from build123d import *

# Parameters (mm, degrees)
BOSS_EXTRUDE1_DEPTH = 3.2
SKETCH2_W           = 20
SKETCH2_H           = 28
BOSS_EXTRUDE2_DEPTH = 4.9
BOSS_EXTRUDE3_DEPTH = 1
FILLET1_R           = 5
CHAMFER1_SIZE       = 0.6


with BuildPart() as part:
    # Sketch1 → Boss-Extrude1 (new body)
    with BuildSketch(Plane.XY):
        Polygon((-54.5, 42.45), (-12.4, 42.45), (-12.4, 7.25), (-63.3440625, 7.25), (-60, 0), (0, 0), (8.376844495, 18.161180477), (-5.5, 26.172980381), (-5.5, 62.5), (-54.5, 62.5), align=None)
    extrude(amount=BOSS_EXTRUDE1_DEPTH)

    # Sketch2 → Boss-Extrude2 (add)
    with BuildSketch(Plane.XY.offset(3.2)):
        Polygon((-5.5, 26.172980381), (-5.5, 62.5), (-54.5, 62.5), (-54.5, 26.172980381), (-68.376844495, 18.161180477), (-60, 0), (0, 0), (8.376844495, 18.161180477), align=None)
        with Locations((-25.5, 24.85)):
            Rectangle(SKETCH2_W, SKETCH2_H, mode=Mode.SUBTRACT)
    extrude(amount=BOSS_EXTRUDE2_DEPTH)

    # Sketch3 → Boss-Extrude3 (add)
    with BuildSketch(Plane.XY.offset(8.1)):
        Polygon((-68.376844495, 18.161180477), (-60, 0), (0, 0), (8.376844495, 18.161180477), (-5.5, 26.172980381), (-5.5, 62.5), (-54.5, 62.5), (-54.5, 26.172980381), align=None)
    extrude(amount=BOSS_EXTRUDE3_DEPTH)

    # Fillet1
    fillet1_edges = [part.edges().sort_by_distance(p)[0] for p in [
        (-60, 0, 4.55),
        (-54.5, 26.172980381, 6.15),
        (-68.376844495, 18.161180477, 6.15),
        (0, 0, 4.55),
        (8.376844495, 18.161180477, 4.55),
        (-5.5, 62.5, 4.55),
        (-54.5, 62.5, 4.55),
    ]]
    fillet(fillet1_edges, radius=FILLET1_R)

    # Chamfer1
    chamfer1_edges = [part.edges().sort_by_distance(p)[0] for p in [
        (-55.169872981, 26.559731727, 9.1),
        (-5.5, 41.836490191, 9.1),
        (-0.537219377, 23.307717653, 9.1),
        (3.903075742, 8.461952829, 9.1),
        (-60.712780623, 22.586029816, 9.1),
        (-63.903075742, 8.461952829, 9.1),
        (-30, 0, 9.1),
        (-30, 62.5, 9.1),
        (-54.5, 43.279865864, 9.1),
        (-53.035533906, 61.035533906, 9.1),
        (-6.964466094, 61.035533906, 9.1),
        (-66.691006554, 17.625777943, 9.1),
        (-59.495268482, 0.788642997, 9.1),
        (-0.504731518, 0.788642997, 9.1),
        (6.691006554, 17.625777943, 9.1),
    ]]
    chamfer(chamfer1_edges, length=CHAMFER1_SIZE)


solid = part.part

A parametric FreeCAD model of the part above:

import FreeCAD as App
import Part
import Sketcher
Q = App.Units.Quantity


def edges_at(feature, points):
    """Names of the edges that pass closest to the given points."""
    edges = feature.Shape.Edges
    near = lambda p: min(range(len(edges)), key=lambda i: edges[i].distToShape(Part.Vertex(*p))[0])
    return sorted({f"Edge{near(p) + 1}" for p in points})

doc = App.newDocument("Part")
body = doc.addObject("PartDesign::Body", "Body")

# Sketch on XY plane
sketch1 = body.newObject("Sketcher::SketchObject", "Sketch")
sketch1.AttachmentSupport = (doc.getObject("XY_Plane"), [""])
sketch1.MapMode = "FlatFace"
sketch1.addGeometry([
    Part.LineSegment(App.Vector(-54.5, 42.45, 0), App.Vector(-12.4, 42.45, 0)),  # 0
    Part.LineSegment(App.Vector(-12.4, 42.45, 0), App.Vector(-12.4, 7.25, 0)),  # 1
    Part.LineSegment(App.Vector(-12.4, 7.25, 0), App.Vector(-63.344062, 7.25, 0)),  # 2
    Part.LineSegment(App.Vector(-63.344062, 7.25, 0), App.Vector(-60, 0, 0)),  # 3
    Part.LineSegment(App.Vector(-60, 0, 0), App.Vector(0, 0, 0)),  # 4
    Part.LineSegment(App.Vector(0, 0, 0), App.Vector(8.376844, 18.16118, 0)),  # 5
    Part.LineSegment(App.Vector(8.376844, 18.16118, 0), App.Vector(-5.5, 26.17298, 0)),  # 6
    Part.LineSegment(App.Vector(-5.5, 26.17298, 0), App.Vector(-5.5, 62.5, 0)),  # 7
    Part.LineSegment(App.Vector(-5.5, 62.5, 0), App.Vector(-54.5, 62.5, 0)),  # 8
    Part.LineSegment(App.Vector(-54.5, 62.5, 0), App.Vector(-54.5, 42.45, 0)),  # 9
], False)
sketch1.addConstraint([
    Sketcher.Constraint("Coincident", 0, 2, 1, 1),
    Sketcher.Constraint("Coincident", 1, 2, 2, 1),
    Sketcher.Constraint("Coincident", 2, 2, 3, 1),
    Sketcher.Constraint("Coincident", 3, 2, 4, 1),
    Sketcher.Constraint("Coincident", 4, 2, 5, 1),
    Sketcher.Constraint("Coincident", 5, 2, 6, 1),
    Sketcher.Constraint("Coincident", 6, 2, 7, 1),
    Sketcher.Constraint("Coincident", 7, 2, 8, 1),
    Sketcher.Constraint("Coincident", 8, 2, 9, 1),
    Sketcher.Constraint("Coincident", 9, 2, 0, 1),
    Sketcher.Constraint("Horizontal", 0),
    Sketcher.Constraint("Vertical", 1),
    Sketcher.Constraint("Horizontal", 2),
    Sketcher.Constraint("Horizontal", 4),
    Sketcher.Constraint("Vertical", 7),
    Sketcher.Constraint("Horizontal", 8),
    Sketcher.Constraint("Vertical", 9),
    Sketcher.Constraint("Coincident", 4, 2, -1, 1),
    Sketcher.Constraint("DistanceX", 4, 1, 4, 2, 60.0),
    Sketcher.Constraint("DistanceX", 8, 2, 8, 1, 49.0),
    Sketcher.Constraint("Angle", 6, Q("150 deg")),
    Sketcher.Constraint("Distance", 5, 20.0),
    Sketcher.Constraint("DistanceX", 0, 1, 0, 2, 42.1),
    Sketcher.Constraint("DistanceY", 1, 2, 1, 1, 35.2),
    Sketcher.Constraint("DistanceY", 9, 2, 9, 1, 20.05),
    Sketcher.Constraint("DistanceX", 0, 2, -1, 1, 12.4),
    Sketcher.Constraint("DistanceY", -1, 1, 7, 2, 62.5),
    Sketcher.Constraint("Distance", 6, 16.0236),
    Sketcher.Constraint("DistanceX", 2, 2, 2, 1, 50.944063),
])
pad1 = body.newObject("PartDesign::Pad", "Pad")
pad1.Profile = sketch1
pad1.Length = 3.2

# Sketch on XY plane
sketch2 = body.newObject("Sketcher::SketchObject", "Sketch001")
sketch2.AttachmentSupport = (doc.getObject("XY_Plane"), [""])
sketch2.MapMode = "FlatFace"
sketch2.AttachmentOffset = App.Placement(App.Vector(0, 0, 3.2), App.Rotation())
sketch2.addGeometry([
    Part.LineSegment(App.Vector(-5.5, 26.17298, 0), App.Vector(-5.5, 62.5, 0)),  # 0
    Part.LineSegment(App.Vector(-5.5, 62.5, 0), App.Vector(-54.5, 62.5, 0)),  # 1
    Part.LineSegment(App.Vector(-54.5, 62.5, 0), App.Vector(-54.5, 26.17298, 0)),  # 2
    Part.LineSegment(App.Vector(-54.5, 26.17298, 0), App.Vector(-68.376844, 18.16118, 0)),  # 3
    Part.LineSegment(App.Vector(-68.376844, 18.16118, 0), App.Vector(-60, 0, 0)),  # 4
    Part.LineSegment(App.Vector(-60, 0, 0), App.Vector(0, 0, 0)),  # 5
    Part.LineSegment(App.Vector(0, 0, 0), App.Vector(8.376844, 18.16118, 0)),  # 6
    Part.LineSegment(App.Vector(8.376844, 18.16118, 0), App.Vector(-5.5, 26.17298, 0)),  # 7
    Part.LineSegment(App.Vector(-15.5, 10.85, 0), App.Vector(-35.5, 10.85, 0)),  # 8
    Part.LineSegment(App.Vector(-35.5, 10.85, 0), App.Vector(-35.5, 38.85, 0)),  # 9
    Part.LineSegment(App.Vector(-35.5, 38.85, 0), App.Vector(-15.5, 38.85, 0)),  # 10
    Part.LineSegment(App.Vector(-15.5, 38.85, 0), App.Vector(-15.5, 10.85, 0)),  # 11
], False)
sketch2.addConstraint([
    Sketcher.Constraint("Coincident", 0, 2, 1, 1),
    Sketcher.Constraint("Coincident", 1, 2, 2, 1),
    Sketcher.Constraint("Coincident", 2, 2, 3, 1),
    Sketcher.Constraint("Coincident", 3, 2, 4, 1),
    Sketcher.Constraint("Coincident", 4, 2, 5, 1),
    Sketcher.Constraint("Coincident", 5, 2, 6, 1),
    Sketcher.Constraint("Coincident", 6, 2, 7, 1),
    Sketcher.Constraint("Coincident", 7, 2, 0, 1),
    Sketcher.Constraint("Coincident", 8, 2, 9, 1),
    Sketcher.Constraint("Coincident", 9, 2, 10, 1),
    Sketcher.Constraint("Coincident", 10, 2, 11, 1),
    Sketcher.Constraint("Coincident", 11, 2, 8, 1),
    Sketcher.Constraint("Vertical", 0),
    Sketcher.Constraint("Horizontal", 1),
    Sketcher.Constraint("Vertical", 2),
    Sketcher.Constraint("Horizontal", 5),
    Sketcher.Constraint("Horizontal", 8),
    Sketcher.Constraint("Vertical", 9),
    Sketcher.Constraint("Horizontal", 10),
    Sketcher.Constraint("Vertical", 11),
    Sketcher.Constraint("Coincident", 5, 2, -1, 1),
    Sketcher.Constraint("Horizontal", 3, 2, 6, 2),
    Sketcher.Constraint("Horizontal", 2, 2, 7, 2),
    Sketcher.Constraint("Equal", 4, 6),
    Sketcher.Constraint("Equal", 3, 7),
    Sketcher.Constraint("DistanceX", 1, 2, 1, 1, 49.0),
    Sketcher.Constraint("DistanceX", 5, 1, 5, 2, 60.0),
    Sketcher.Constraint("DistanceX", 8, 2, 8, 1, 20.0),
    Sketcher.Constraint("DistanceY", 9, 1, 9, 2, 28.0),
    Sketcher.Constraint("Angle", 3, Q("-150 deg")),
    Sketcher.Constraint("Distance", 4, 20.0),
    Sketcher.Constraint("DistanceX", 2, 2, 8, 2, 19.0),
    Sketcher.Constraint("DistanceY", -1, 1, 0, 2, 62.5),
    Sketcher.Constraint("DistanceY", -1, 1, 8, 2, 10.85),
    Sketcher.Constraint("Distance", 3, 16.0236),
])
pad2 = body.newObject("PartDesign::Pad", "Pad001")
pad2.Profile = sketch2
pad2.Length = 4.9

# Sketch on XY plane
sketch3 = body.newObject("Sketcher::SketchObject", "Sketch002")
sketch3.AttachmentSupport = (doc.getObject("XY_Plane"), [""])
sketch3.MapMode = "FlatFace"
sketch3.AttachmentOffset = App.Placement(App.Vector(0, 0, 8.1), App.Rotation())
sketch3.addGeometry([
    Part.LineSegment(App.Vector(-68.376844, 18.16118, 0), App.Vector(-60, 0, 0)),  # 0
    Part.LineSegment(App.Vector(-60, 0, 0), App.Vector(0, 0, 0)),  # 1
    Part.LineSegment(App.Vector(0, 0, 0), App.Vector(8.376844, 18.16118, 0)),  # 2
    Part.LineSegment(App.Vector(8.376844, 18.16118, 0), App.Vector(-5.5, 26.17298, 0)),  # 3
    Part.LineSegment(App.Vector(-5.5, 26.17298, 0), App.Vector(-5.5, 62.5, 0)),  # 4
    Part.LineSegment(App.Vector(-5.5, 62.5, 0), App.Vector(-54.5, 62.5, 0)),  # 5
    Part.LineSegment(App.Vector(-54.5, 62.5, 0), App.Vector(-54.5, 26.17298, 0)),  # 6
    Part.LineSegment(App.Vector(-54.5, 26.17298, 0), App.Vector(-68.376844, 18.16118, 0)),  # 7
], False)
sketch3.addConstraint([
    Sketcher.Constraint("Coincident", 0, 2, 1, 1),
    Sketcher.Constraint("Coincident", 1, 2, 2, 1),
    Sketcher.Constraint("Coincident", 2, 2, 3, 1),
    Sketcher.Constraint("Coincident", 3, 2, 4, 1),
    Sketcher.Constraint("Coincident", 4, 2, 5, 1),
    Sketcher.Constraint("Coincident", 5, 2, 6, 1),
    Sketcher.Constraint("Coincident", 6, 2, 7, 1),
    Sketcher.Constraint("Coincident", 7, 2, 0, 1),
    Sketcher.Constraint("Horizontal", 1),
    Sketcher.Constraint("Vertical", 4),
    Sketcher.Constraint("Horizontal", 5),
    Sketcher.Constraint("Vertical", 6),
    Sketcher.Constraint("Coincident", 1, 2, -1, 1),
    Sketcher.Constraint("Horizontal", 3, 2, 6, 2),
    Sketcher.Constraint("Horizontal", 2, 2, 7, 2),
    Sketcher.Constraint("Equal", 0, 2),
    Sketcher.Constraint("Equal", 3, 7),
    Sketcher.Constraint("DistanceX", 1, 1, 1, 2, 60.0),
    Sketcher.Constraint("DistanceX", 5, 2, 5, 1, 49.0),
    Sketcher.Constraint("Angle", 3, Q("150 deg")),
    Sketcher.Constraint("Distance", 0, 20.0),
    Sketcher.Constraint("DistanceY", -1, 1, 4, 2, 62.5),
    Sketcher.Constraint("Distance", 3, 16.0236),
])
pad3 = body.newObject("PartDesign::Pad", "Pad002")
pad3.Profile = sketch3
pad3.Length = 1
doc.recompute()

fillet = body.newObject("PartDesign::Fillet", "Fillet")
fillet.Base = (pad3, edges_at(pad3, [
    (-60, 0, 4.55),
    (-54.5, 26.173, 6.15),
    (-68.377, 18.161, 6.15),
    (0, 0, 4.55),
    (8.377, 18.161, 4.55),
    (-5.5, 62.5, 4.55),
    (-54.5, 62.5, 4.55),
]))
fillet.Radius = 5
doc.recompute()

chamfer = body.newObject("PartDesign::Chamfer", "Chamfer")
chamfer.Base = (fillet, edges_at(fillet, [
    (-55.17, 26.56, 9.1),
    (-5.5, 41.836, 9.1),
    (-0.537, 23.308, 9.1),
    (3.903, 8.462, 9.1),
    (-60.713, 22.586, 9.1),
    (-63.903, 8.462, 9.1),
    (-30, 0, 9.1),
    (-30, 62.5, 9.1),
    (-54.5, 43.28, 9.1),
    (-53.036, 61.036, 9.1),
    (-6.964, 61.036, 9.1),
    (-66.691, 17.626, 9.1),
    (-59.495, 0.789, 9.1),
    (-0.505, 0.789, 9.1),
    (6.691, 17.626, 9.1),
]))
chamfer.Size = 0.6

doc.recompute()
